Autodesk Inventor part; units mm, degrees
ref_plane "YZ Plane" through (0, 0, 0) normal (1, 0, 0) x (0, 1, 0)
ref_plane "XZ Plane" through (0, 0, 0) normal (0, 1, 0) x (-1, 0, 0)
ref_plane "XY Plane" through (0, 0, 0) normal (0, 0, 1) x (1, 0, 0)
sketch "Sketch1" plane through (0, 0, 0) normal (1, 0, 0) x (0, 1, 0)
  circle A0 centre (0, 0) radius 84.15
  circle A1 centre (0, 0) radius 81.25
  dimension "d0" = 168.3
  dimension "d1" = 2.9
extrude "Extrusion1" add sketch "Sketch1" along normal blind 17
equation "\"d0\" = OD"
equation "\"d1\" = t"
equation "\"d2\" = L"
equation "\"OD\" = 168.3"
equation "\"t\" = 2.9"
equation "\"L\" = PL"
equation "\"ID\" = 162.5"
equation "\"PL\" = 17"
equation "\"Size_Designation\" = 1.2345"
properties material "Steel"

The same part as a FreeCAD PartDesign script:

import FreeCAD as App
import Part
import Sketcher
from FreeCAD import Vector

doc = App.newDocument("Part")
body = doc.addObject("PartDesign::Body", "Body")

sketch1 = doc.addObject("Sketcher::SketchObject", "Sketch")
body.addObject(sketch1)
sketch1.AttachmentSupport = (doc.YZ_Plane, [""])
sketch1.MapMode = "FlatFace"
sketch1.addGeometry([
    Part.Circle(Vector(0, 0, 0), Vector(0, 0, 1), 84),
    Part.Circle(Vector(0, 0, 0), Vector(0, 0, 1), 81),
], False)
sketch1.addConstraint([
    Sketcher.Constraint("Coincident", 0, 3, -1, 1),
    Sketcher.Constraint("Coincident", 1, 3, -1, 1),
    Sketcher.Constraint("Diameter", 0, 168.3),
    Sketcher.Constraint("Diameter", 1, 162.5),
])
pad1 = doc.addObject("PartDesign::Pad", "Pad")
body.addObject(pad1)
pad1.Profile = sketch1
pad1.Length = 17

doc.recompute()
